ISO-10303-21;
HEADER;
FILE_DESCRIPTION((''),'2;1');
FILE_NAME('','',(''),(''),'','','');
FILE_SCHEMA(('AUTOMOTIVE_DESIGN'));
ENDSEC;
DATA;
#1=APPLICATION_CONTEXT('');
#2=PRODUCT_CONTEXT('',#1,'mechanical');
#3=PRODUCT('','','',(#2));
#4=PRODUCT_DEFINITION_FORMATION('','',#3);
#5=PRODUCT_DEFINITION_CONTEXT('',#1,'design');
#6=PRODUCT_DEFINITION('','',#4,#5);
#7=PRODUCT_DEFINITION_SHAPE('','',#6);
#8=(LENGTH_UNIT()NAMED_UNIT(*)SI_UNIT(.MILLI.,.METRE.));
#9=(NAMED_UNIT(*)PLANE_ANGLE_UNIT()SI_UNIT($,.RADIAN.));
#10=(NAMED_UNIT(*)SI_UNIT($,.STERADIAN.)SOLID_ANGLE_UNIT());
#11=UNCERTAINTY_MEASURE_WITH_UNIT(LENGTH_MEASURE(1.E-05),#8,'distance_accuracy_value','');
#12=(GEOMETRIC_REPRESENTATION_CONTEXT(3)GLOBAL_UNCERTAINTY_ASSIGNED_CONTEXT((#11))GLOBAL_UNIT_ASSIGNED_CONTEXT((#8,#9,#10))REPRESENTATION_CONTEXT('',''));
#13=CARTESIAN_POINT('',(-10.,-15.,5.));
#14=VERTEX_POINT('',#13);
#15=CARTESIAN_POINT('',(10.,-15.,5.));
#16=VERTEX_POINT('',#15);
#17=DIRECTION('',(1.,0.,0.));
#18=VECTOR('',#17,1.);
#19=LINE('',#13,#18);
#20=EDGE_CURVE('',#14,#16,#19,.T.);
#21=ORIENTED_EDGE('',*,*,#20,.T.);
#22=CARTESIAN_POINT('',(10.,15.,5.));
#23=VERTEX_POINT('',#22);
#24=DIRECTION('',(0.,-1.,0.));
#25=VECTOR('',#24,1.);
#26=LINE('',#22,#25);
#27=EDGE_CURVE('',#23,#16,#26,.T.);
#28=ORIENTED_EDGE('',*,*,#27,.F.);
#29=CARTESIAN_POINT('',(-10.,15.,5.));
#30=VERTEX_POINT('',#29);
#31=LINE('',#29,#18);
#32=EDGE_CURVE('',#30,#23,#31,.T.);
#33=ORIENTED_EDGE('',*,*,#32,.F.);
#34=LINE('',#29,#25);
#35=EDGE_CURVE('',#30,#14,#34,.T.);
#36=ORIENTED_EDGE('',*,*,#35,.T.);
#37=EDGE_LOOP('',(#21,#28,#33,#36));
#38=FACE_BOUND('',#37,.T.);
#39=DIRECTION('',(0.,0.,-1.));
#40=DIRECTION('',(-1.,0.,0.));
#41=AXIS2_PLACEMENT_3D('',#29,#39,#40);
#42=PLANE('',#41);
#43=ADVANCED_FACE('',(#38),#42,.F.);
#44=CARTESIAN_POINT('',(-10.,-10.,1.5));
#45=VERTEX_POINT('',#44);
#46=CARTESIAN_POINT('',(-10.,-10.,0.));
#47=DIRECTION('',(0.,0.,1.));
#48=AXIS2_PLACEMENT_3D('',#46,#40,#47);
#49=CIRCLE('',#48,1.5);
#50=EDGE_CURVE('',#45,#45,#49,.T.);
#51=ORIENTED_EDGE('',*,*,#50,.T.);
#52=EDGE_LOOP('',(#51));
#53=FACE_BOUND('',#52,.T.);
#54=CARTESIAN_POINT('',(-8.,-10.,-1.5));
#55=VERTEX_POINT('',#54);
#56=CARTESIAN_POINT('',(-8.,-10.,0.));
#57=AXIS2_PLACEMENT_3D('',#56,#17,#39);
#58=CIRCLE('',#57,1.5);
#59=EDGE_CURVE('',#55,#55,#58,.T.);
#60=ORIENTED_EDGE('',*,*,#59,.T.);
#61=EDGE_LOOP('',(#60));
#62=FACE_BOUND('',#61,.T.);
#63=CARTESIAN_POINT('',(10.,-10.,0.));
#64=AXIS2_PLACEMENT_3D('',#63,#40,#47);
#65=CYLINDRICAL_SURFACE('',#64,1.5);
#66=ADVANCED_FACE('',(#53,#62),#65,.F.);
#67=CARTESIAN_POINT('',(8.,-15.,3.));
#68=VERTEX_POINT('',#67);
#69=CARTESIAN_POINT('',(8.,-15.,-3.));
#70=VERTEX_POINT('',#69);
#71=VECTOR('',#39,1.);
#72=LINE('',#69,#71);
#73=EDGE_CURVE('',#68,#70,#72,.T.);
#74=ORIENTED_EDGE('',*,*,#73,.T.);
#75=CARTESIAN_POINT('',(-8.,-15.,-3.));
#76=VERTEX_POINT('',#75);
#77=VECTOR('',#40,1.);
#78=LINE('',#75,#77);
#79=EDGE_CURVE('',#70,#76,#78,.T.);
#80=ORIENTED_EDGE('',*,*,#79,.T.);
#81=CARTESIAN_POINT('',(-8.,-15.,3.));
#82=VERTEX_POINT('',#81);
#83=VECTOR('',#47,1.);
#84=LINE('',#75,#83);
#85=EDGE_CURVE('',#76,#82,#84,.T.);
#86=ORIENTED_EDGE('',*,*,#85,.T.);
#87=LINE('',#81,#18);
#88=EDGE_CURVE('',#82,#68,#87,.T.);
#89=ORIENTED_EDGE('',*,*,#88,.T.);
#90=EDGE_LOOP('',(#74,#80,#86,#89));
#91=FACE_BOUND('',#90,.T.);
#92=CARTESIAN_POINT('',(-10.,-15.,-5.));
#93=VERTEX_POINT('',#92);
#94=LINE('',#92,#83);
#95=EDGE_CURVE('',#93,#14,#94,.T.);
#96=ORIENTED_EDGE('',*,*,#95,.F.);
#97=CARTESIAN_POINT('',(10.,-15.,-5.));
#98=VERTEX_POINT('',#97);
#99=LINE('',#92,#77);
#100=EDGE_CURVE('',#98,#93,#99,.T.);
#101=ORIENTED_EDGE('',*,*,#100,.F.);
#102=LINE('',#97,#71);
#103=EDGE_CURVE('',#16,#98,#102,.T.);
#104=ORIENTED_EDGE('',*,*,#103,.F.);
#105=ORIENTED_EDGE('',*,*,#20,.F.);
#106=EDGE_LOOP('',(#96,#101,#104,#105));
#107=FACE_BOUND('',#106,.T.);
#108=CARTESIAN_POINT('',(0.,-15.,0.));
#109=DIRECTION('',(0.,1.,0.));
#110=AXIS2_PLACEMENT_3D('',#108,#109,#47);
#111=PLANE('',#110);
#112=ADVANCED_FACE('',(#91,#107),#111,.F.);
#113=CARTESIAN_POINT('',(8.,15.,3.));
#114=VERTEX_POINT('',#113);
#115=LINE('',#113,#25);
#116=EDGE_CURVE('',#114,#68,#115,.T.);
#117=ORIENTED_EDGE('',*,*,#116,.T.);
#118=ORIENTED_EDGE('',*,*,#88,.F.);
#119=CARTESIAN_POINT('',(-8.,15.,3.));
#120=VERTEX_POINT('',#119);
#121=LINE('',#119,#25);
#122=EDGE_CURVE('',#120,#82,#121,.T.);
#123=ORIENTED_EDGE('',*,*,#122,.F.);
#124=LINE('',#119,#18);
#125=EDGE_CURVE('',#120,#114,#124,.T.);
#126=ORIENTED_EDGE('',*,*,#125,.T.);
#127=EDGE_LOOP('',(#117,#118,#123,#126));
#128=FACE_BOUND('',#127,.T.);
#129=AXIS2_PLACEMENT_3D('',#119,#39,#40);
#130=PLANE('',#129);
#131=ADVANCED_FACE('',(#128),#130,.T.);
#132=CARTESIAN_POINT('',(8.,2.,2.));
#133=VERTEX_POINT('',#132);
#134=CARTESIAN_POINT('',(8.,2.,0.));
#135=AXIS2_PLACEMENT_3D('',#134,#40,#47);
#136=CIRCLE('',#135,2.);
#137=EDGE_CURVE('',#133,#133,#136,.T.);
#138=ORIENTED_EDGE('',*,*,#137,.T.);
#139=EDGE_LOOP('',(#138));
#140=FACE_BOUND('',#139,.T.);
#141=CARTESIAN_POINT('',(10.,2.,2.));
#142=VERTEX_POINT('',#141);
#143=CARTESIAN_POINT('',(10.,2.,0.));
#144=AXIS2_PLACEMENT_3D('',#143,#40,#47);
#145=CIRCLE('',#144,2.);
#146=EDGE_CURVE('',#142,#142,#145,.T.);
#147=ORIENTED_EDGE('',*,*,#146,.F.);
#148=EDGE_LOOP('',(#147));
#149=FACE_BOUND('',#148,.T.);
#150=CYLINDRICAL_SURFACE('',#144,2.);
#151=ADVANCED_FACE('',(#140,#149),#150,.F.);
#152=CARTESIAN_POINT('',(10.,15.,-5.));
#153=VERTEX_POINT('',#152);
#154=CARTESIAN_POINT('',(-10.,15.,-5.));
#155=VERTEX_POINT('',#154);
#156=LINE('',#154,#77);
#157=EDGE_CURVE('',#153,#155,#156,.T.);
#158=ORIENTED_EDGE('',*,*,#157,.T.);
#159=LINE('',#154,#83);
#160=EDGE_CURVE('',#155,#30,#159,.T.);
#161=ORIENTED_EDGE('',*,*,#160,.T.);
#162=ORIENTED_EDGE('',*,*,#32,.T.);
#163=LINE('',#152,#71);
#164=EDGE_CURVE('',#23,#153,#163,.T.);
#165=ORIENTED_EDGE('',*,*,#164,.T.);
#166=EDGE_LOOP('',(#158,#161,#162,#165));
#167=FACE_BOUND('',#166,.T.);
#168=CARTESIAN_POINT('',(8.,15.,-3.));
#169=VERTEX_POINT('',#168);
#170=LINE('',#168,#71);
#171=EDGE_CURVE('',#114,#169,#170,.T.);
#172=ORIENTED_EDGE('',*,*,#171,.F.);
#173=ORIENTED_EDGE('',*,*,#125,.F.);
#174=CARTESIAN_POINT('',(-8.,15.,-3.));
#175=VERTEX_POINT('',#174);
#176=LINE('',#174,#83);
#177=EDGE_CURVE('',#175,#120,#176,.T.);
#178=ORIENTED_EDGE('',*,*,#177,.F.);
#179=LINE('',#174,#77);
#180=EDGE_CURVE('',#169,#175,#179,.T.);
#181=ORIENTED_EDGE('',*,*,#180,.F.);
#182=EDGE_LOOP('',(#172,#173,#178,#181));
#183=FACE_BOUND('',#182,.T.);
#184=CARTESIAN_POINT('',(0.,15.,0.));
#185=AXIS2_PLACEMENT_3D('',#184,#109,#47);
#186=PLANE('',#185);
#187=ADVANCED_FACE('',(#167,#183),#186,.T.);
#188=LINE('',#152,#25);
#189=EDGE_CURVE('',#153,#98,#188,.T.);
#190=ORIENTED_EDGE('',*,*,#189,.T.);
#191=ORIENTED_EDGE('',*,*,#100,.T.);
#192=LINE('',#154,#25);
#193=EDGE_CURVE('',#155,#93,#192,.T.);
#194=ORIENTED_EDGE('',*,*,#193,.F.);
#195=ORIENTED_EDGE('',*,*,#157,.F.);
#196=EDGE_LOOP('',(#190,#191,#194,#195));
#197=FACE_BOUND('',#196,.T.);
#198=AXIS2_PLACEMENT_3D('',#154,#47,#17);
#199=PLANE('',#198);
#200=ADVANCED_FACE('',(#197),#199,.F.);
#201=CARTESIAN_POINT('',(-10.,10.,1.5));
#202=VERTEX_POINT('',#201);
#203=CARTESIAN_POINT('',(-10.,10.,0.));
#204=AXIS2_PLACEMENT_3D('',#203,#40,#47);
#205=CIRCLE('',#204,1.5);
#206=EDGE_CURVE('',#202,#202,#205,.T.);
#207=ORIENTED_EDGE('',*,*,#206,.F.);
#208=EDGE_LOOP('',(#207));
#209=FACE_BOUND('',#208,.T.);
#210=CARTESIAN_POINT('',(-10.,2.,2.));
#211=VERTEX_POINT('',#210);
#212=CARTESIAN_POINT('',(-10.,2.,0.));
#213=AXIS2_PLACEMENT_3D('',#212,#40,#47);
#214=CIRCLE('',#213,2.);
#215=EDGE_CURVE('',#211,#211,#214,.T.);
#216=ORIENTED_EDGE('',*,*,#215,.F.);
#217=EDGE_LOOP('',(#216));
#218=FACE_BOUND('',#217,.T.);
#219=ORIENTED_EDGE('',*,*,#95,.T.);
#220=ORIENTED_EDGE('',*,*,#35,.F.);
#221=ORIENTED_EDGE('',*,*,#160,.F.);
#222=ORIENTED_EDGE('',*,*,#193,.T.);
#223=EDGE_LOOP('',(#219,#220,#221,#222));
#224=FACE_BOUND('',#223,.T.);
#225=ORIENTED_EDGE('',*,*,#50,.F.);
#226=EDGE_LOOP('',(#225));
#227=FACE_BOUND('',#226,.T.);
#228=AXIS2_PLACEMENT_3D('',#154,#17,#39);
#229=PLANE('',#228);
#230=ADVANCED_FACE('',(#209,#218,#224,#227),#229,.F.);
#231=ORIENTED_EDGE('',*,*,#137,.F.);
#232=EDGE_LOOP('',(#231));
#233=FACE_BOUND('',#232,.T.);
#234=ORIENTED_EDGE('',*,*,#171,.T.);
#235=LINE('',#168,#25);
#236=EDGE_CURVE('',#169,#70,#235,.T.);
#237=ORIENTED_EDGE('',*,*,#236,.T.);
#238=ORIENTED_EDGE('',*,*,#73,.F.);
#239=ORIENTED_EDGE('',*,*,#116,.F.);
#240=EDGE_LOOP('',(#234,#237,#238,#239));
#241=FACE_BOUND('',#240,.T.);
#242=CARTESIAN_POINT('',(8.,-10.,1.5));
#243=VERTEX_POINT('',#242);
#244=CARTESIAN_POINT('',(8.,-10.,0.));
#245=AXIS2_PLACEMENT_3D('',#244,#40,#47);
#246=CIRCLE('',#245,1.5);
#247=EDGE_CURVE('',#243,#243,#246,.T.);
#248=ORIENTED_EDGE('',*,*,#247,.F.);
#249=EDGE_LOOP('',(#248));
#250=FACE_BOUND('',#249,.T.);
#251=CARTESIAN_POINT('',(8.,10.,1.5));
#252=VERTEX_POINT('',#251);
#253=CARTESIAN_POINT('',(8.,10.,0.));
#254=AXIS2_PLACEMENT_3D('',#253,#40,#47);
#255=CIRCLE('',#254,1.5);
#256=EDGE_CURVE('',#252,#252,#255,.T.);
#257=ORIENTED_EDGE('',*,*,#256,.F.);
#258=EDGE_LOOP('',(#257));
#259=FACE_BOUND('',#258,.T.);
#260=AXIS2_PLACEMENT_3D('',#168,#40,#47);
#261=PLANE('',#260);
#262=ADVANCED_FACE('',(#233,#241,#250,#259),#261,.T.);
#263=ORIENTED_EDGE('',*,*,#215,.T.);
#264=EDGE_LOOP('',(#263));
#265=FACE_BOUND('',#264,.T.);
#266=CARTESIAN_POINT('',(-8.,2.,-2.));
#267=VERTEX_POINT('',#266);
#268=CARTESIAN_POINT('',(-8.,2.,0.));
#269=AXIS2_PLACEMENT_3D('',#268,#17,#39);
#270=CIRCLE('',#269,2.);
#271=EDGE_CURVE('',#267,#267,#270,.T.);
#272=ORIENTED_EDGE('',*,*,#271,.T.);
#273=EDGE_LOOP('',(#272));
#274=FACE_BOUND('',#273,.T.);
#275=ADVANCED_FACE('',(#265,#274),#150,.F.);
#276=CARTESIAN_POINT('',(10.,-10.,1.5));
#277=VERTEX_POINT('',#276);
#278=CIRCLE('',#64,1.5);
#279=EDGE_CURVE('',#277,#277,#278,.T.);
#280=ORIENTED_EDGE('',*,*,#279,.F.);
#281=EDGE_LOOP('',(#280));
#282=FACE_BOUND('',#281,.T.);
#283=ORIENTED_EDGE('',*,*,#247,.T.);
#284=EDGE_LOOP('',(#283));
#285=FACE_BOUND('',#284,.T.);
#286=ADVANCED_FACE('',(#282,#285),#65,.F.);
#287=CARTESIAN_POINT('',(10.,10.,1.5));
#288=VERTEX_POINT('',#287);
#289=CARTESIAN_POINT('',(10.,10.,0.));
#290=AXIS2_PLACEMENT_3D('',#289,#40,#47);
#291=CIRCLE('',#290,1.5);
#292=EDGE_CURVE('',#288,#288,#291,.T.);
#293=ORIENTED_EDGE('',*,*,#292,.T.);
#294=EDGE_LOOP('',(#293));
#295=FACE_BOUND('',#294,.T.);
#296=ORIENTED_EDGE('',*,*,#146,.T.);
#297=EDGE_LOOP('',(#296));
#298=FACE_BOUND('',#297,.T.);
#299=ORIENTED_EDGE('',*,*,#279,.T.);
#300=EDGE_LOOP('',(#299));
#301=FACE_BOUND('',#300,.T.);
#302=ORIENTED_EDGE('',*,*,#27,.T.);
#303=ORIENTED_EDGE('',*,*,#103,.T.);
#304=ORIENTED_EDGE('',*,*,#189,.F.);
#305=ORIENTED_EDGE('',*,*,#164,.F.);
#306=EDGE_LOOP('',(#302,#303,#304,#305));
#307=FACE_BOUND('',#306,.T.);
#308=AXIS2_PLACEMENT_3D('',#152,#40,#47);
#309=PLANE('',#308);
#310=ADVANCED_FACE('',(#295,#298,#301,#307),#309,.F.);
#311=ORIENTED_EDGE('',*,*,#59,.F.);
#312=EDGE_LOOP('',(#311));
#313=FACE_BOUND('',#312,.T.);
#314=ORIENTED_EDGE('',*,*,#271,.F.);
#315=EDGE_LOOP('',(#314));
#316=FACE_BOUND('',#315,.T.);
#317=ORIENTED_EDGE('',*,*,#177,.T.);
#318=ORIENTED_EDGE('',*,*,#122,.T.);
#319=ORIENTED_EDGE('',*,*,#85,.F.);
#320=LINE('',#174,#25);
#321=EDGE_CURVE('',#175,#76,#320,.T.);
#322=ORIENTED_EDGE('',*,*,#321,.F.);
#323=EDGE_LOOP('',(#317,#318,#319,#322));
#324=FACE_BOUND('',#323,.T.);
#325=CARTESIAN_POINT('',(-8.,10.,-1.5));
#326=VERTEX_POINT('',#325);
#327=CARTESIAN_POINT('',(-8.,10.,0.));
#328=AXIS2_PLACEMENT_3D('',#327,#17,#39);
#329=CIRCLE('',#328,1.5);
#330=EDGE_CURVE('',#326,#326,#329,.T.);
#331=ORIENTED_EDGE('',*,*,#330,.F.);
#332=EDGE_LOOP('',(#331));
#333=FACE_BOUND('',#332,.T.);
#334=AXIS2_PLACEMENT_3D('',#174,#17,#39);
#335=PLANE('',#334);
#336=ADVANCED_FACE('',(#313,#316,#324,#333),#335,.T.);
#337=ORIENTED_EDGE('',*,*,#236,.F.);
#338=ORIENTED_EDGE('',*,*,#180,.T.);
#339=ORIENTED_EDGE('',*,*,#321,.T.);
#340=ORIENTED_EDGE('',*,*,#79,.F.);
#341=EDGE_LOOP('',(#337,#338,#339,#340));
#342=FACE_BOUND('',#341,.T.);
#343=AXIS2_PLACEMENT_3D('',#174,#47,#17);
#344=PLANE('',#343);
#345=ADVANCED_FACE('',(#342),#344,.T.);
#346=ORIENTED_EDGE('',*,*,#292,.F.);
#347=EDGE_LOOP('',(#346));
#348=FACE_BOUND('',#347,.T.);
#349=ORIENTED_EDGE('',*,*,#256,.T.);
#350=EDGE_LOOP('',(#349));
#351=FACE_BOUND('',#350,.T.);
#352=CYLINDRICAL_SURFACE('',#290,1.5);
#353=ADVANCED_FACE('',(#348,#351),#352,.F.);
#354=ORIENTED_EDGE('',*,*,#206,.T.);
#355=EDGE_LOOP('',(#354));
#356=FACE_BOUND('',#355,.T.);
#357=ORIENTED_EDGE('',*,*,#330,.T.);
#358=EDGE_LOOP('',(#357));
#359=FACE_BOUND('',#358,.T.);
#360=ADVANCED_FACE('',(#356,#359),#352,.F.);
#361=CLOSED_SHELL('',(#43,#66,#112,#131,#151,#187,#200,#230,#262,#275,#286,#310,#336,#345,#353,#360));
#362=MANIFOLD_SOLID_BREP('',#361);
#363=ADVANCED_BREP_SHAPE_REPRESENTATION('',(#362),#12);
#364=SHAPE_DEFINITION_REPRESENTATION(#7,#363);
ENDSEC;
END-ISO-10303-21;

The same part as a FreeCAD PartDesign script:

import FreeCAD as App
import Part
import Sketcher
from FreeCAD import Vector


def add_polygon(sketch, points):
    """Adds a closed chain of lines whose ends are joined by coincident constraints."""
    first, n = sketch.GeometryCount, len(points)
    for a, b in zip(points, points[1:] + points[:1]):
        sketch.addGeometry(Part.LineSegment(App.Vector(*a, 0), App.Vector(*b, 0)), False)
    for i in range(n):
        sketch.addConstraint(Sketcher.Constraint("Coincident", first + i, 2, first + (i + 1) % n, 1))

doc = App.newDocument("Part")
params = doc.addObject("Spreadsheet::Sheet", "Params")
for row, (alias, value) in enumerate([
    ("sketch1_width", "20 mm"),
    ("sketch1_width2", "16 mm"),
    ("sketch1_height", "10 mm"),
    ("sketch1_height2", "6 mm"),
    ("pad1_length", "30 mm"),
    ("sketch2_diameter", "4 mm"),
    ("sketch2_diameter2", "3 mm"),
], start=1):
    params.set(f"A{row}", alias)
    params.set(f"B{row}", "=" + value)
    params.setAlias(f"B{row}", alias)

body = doc.addObject("PartDesign::Body", "Body")

sketch1 = body.newObject("Sketcher::SketchObject", "Sketch")
sketch1.AttachmentSupport = (doc.getObject("XZ_Plane"), [""])
sketch1.MapMode = "FlatFace"
add_polygon(sketch1, [(-10, -5), (-10, 5), (10, 5), (10, -5)])
add_polygon(sketch1, [(8, 3), (-8, 3), (-8, -3), (8, -3)])
sketch1.addConstraint([
    Sketcher.Constraint("Vertical", 0),
    Sketcher.Constraint("Horizontal", 1),
    Sketcher.Constraint("Vertical", 2),
    Sketcher.Constraint("Horizontal", 3),
    Sketcher.Constraint("Horizontal", 4),
    Sketcher.Constraint("Vertical", 5),
    Sketcher.Constraint("Horizontal", 6),
    Sketcher.Constraint("Vertical", 7),
    Sketcher.Constraint("Symmetric", 0, 2, 2, 2, -1, 1),
    Sketcher.Constraint("Symmetric", 4, 2, 6, 2, -1, 1),
    Sketcher.Constraint("DistanceX", 1, 1, 1, 2, 20.0),
    Sketcher.Constraint("DistanceX", 4, 2, 4, 1, 16.0),
    Sketcher.Constraint("DistanceY", 0, 1, 0, 2, 10.0),
    Sketcher.Constraint("DistanceY", 5, 2, 5, 1, 6.0),
])
sketch1.setExpression("Constraints[18]", "Params.sketch1_width")
sketch1.setExpression("Constraints[19]", "Params.sketch1_width2")
sketch1.setExpression("Constraints[20]", "Params.sketch1_height")
sketch1.setExpression("Constraints[21]", "Params.sketch1_height2")
pad1 = body.newObject("PartDesign::Pad", "Pad")
pad1.Profile = sketch1
pad1.setExpression("Length", "Params.pad1_length")
pad1.Midplane = True

sketch2 = body.newObject("Sketcher::SketchObject", "Sketch001")
sketch2.AttachmentSupport = (doc.getObject("YZ_Plane"), [""])
sketch2.MapMode = "FlatFace"
sketch2.AttachmentOffset = App.Placement(Vector(0, 0, -10), App.Rotation())
sketch2.addGeometry([
    Part.Circle(Vector(2, 0, 0), Vector(0, 0, 1), 2),
    Part.Circle(Vector(10, 0, 0), Vector(0, 0, 1), 1.5),
    Part.Circle(Vector(-10, 0, 0), Vector(0, 0, 1), 1.5),
], False)
sketch2.addConstraint([
    Sketcher.Constraint("Equal", 1, 2),
    Sketcher.Constraint("Symmetric", 1, 3, 2, 3, -1, 1),
    Sketcher.Constraint("PointOnObject", 0, 3, -1),
    Sketcher.Constraint("PointOnObject", 1, 3, -1),
    Sketcher.Constraint("Diameter", 0, 4.0),
    Sketcher.Constraint("Diameter", 1, 3.0),
    Sketcher.Constraint("DistanceX", -1, 1, 0, 3, 2.0),
    Sketcher.Constraint("DistanceX", -1, 1, 1, 3, 10.0),
])
sketch2.setExpression("Constraints[4]", "Params.sketch2_diameter")
sketch2.setExpression("Constraints[5]", "Params.sketch2_diameter2")
pocket1 = body.newObject("PartDesign::Pocket", "Pocket")
pocket1.Profile = sketch2
pocket1.Type = "ThroughAll"
pocket1.Reversed = True

doc.recompute()
